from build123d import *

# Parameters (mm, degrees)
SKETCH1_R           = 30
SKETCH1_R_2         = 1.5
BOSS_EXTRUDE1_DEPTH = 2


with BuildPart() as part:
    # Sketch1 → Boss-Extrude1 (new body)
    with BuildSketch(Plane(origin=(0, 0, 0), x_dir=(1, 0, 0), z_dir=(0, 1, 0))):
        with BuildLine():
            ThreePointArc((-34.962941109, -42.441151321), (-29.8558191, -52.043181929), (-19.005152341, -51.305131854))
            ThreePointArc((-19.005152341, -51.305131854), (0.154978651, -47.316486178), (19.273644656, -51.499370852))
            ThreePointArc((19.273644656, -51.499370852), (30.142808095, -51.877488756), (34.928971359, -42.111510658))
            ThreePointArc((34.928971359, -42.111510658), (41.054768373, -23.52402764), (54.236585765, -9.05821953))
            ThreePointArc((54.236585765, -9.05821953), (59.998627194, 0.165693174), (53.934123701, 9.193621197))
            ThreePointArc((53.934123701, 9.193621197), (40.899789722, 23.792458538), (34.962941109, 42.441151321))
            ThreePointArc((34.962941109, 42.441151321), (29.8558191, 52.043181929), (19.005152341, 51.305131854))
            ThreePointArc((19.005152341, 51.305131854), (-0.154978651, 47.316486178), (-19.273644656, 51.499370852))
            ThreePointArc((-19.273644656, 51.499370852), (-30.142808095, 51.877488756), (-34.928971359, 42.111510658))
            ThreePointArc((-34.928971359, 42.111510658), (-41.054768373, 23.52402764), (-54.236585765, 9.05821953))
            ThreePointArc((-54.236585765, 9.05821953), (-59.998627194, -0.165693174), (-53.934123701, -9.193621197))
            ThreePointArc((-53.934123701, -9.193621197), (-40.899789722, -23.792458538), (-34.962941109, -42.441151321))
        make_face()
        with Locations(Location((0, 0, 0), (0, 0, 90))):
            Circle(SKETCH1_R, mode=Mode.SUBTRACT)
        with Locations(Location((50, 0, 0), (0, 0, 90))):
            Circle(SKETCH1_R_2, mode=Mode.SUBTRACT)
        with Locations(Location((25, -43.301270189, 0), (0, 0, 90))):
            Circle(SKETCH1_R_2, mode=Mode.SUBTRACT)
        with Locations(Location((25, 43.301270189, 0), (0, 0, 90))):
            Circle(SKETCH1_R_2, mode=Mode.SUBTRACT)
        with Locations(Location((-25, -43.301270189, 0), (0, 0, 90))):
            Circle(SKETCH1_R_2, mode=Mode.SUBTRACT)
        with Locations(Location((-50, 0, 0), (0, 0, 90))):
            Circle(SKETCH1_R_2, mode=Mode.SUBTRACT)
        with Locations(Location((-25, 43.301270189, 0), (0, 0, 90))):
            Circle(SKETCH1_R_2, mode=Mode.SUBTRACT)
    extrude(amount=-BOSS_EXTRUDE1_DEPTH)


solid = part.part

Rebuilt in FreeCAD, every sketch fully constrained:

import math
import FreeCAD as App
import Part
import Sketcher
from FreeCAD import Vector
Q = App.Units.Quantity

doc = App.newDocument("Part")
body = doc.addObject("PartDesign::Body", "Body")

sketch1 = doc.addObject("Sketcher::SketchObject", "Sketch")
body.addObject(sketch1)
sketch1.AttachmentSupport = (doc.XZ_Plane, [""])
sketch1.MapMode = "FlatFace"
sketch1.addGeometry(Part.ArcOfCircle(Part.Circle(Vector(-25, 43.3, 0), Vector(0, 0, 1), 10), math.radians(53), math.radians(185)), False)
sketch1.addGeometry(Part.ArcOfCircle(Part.Circle(Vector(-0.1, 94.2, 0), Vector(0, 0, 1), 46.9), math.radians(-114), math.radians(-66)), False)
sketch1.addGeometry(Part.ArcOfCircle(Part.Circle(Vector(25, 43.3, 0), Vector(0, 0, 1), 10), math.radians(-7), math.radians(125)), False)
sketch1.addGeometry(Part.ArcOfCircle(Part.Circle(Vector(81.5, 47.2, 0), Vector(0, 0, 1), 46.9), math.radians(-174), math.radians(-126)), False)
sketch1.addGeometry(Part.ArcOfCircle(Part.Circle(Vector(50, 0, 0), Vector(0, 0, 1), 10), math.radians(-67), math.radians(65)), False)
sketch1.addGeometry(Part.ArcOfCircle(Part.Circle(Vector(81.6, -47, 0), Vector(0, 0, 1), 46.9), math.radians(126), math.radians(174)), False)
sketch1.addGeometry(Part.ArcOfCircle(Part.Circle(Vector(25, -43.3, 0), Vector(0, 0, 1), 10), math.radians(-127), math.radians(5)), False)
sketch1.addGeometry(Part.ArcOfCircle(Part.Circle(Vector(0.1, -94.2, 0), Vector(0, 0, 1), 46.9), math.radians(66), math.radians(114)), False)
sketch1.addGeometry(Part.ArcOfCircle(Part.Circle(Vector(-25, -43.3, 0), Vector(0, 0, 1), 10), math.radians(173), math.radians(305)), False)
sketch1.addGeometry(Part.ArcOfCircle(Part.Circle(Vector(-81.5, -47.2, 0), Vector(0, 0, 1), 46.9), math.radians(6), math.radians(54)), False)
sketch1.addGeometry(Part.ArcOfCircle(Part.Circle(Vector(-50, 0, 0), Vector(0, 0, 1), 10), math.radians(113), math.radians(245)), False)
sketch1.addGeometry(Part.ArcOfCircle(Part.Circle(Vector(-81.6, 47, 0), Vector(0, 0, 1), 46.9), math.radians(-54), math.radians(-6)), False)
sketch1.addGeometry(Part.Circle(Vector(-25, 43.3, 0), Vector(0, 0, 1), 1.5), False)
sketch1.addGeometry(Part.Circle(Vector(-50, 0, 0), Vector(0, 0, 1), 1.5), False)
sketch1.addGeometry(Part.Circle(Vector(0, 0, 0), Vector(0, 0, 1), 30), False)
sketch1.addGeometry(Part.Circle(Vector(25, 43.3, 0), Vector(0, 0, 1), 1.5), False)
sketch1.addGeometry(Part.Circle(Vector(50, 0, 0), Vector(0, 0, 1), 1.5), False)
sketch1.addGeometry(Part.Circle(Vector(-25, -43.3, 0), Vector(0, 0, 1), 1.5), False)
sketch1.addGeometry(Part.Circle(Vector(25, -43.3, 0), Vector(0, 0, 1), 1.5), False)
sketch1.addConstraint(Sketcher.Constraint("Coincident", 0, 1, 1, 1))
sketch1.addConstraint(Sketcher.Constraint("Coincident", 1, 2, 2, 2))
sketch1.addConstraint(Sketcher.Constraint("Coincident", 2, 1, 3, 1))
sketch1.addConstraint(Sketcher.Constraint("Coincident", 3, 2, 4, 2))
sketch1.addConstraint(Sketcher.Constraint("Coincident", 4, 1, 5, 1))
sketch1.addConstraint(Sketcher.Constraint("Coincident", 5, 2, 6, 2))
sketch1.addConstraint(Sketcher.Constraint("Coincident", 6, 1, 7, 1))
sketch1.addConstraint(Sketcher.Constraint("Coincident", 7, 2, 8, 2))
sketch1.addConstraint(Sketcher.Constraint("Coincident", 8, 1, 9, 1))
sketch1.addConstraint(Sketcher.Constraint("Coincident", 9, 2, 10, 2))
sketch1.addConstraint(Sketcher.Constraint("Coincident", 10, 1, 11, 1))
sketch1.addConstraint(Sketcher.Constraint("Coincident", 11, 2, 0, 2))
sketch1.addConstraint(Sketcher.Constraint("Coincident", 14, 3, -1, 1))
sketch1.addConstraint(Sketcher.Constraint("Coincident", 12, 3, 0, 3))
sketch1.addConstraint(Sketcher.Constraint("Coincident", 13, 3, 10, 3))
sketch1.addConstraint(Sketcher.Constraint("Coincident", 15, 3, 2, 3))
sketch1.addConstraint(Sketcher.Constraint("Coincident", 16, 3, 4, 3))
sketch1.addConstraint(Sketcher.Constraint("Coincident", 17, 3, 8, 3))
sketch1.addConstraint(Sketcher.Constraint("Coincident", 18, 3, 6, 3))
sketch1.addConstraint(Sketcher.Constraint("Equal", 0, 2))
sketch1.addConstraint(Sketcher.Constraint("Equal", 1, 3))
sketch1.addConstraint(Sketcher.Constraint("Equal", 2, 4))
sketch1.addConstraint(Sketcher.Constraint("Equal", 3, 5))
sketch1.addConstraint(Sketcher.Constraint("Equal", 4, 6))
sketch1.addConstraint(Sketcher.Constraint("Equal", 5, 7))
sketch1.addConstraint(Sketcher.Constraint("Equal", 6, 8))
sketch1.addConstraint(Sketcher.Constraint("Equal", 7, 9))
sketch1.addConstraint(Sketcher.Constraint("Equal", 8, 10))
sketch1.addConstraint(Sketcher.Constraint("Equal", 9, 11))
sketch1.addConstraint(Sketcher.Constraint("Equal", 12, 13))
sketch1.addConstraint(Sketcher.Constraint("Equal", 13, 15))
sketch1.addConstraint(Sketcher.Constraint("Equal", 15, 16))
sketch1.addConstraint(Sketcher.Constraint("Equal", 16, 17))
sketch1.addConstraint(Sketcher.Constraint("Equal", 17, 18))
sketch1.addConstraint(Sketcher.Constraint("Symmetric", 0, 3, 6, 3, -1, 1))
sketch1.addConstraint(Sketcher.Constraint("Symmetric", 1, 3, 7, 3, -1, 1))
sketch1.addConstraint(Sketcher.Constraint("Symmetric", 2, 3, 8, 3, -1, 1))
sketch1.addConstraint(Sketcher.Constraint("Symmetric", 3, 3, 9, 3, -1, 1))
sketch1.addConstraint(Sketcher.Constraint("Symmetric", 4, 3, 10, 3, -1, 1))
sketch1.addConstraint(Sketcher.Constraint("Symmetric", 5, 3, 11, 3, -1, 1))
sketch1.addConstraint(Sketcher.Constraint("Symmetric", 0, 3, 2, 3, -2))
sketch1.addConstraint(Sketcher.Constraint("PointOnObject", 4, 3, -1))
sketch1.addConstraint(Sketcher.Constraint("Diameter", 12, Q("3 mm")))
sketch1.addConstraint(Sketcher.Constraint("Diameter", 14, Q("60 mm")))
sketch1.addConstraint(Sketcher.Constraint("Radius", 0, Q("10 mm")))
sketch1.addConstraint(Sketcher.Constraint("DistanceX", 0, 3, -1, 1, Q("25 mm")))
sketch1.addConstraint(Sketcher.Constraint("DistanceX", -1, 1, 4, 3, Q("50 mm")))
sketch1.addConstraint(Sketcher.Constraint("Radius", 1, Q("46.871879 mm")))
sketch1.addConstraint(Sketcher.Constraint("DistanceY", 2, 3, 1, 2, Q("8.198101 mm")))
sketch1.addConstraint(Sketcher.Constraint("DistanceY", -1, 1, 0, 3, Q("43.30127 mm")))
sketch1.addConstraint(Sketcher.Constraint("DistanceX", 1, 3, -1, 1, Q("0.082861 mm")))
sketch1.addConstraint(Sketcher.Constraint("DistanceY", -1, 1, 3, 3, Q("47.165641 mm")))
sketch1.addConstraint(Sketcher.Constraint("DistanceY", 5, 3, -1, 1, Q("47.022121 mm")))
sketch1.addConstraint(Sketcher.Constraint("DistanceX", -1, 1, 2, 1, Q("34.928971 mm")))
sketch1.addConstraint(Sketcher.Constraint("DistanceY", 4, 1, -1, 1, Q("9.193621 mm")))
pad1 = doc.addObject("PartDesign::Pad", "Pad")
body.addObject(pad1)
pad1.Profile = sketch1
pad1.Length = 2

doc.recompute()
